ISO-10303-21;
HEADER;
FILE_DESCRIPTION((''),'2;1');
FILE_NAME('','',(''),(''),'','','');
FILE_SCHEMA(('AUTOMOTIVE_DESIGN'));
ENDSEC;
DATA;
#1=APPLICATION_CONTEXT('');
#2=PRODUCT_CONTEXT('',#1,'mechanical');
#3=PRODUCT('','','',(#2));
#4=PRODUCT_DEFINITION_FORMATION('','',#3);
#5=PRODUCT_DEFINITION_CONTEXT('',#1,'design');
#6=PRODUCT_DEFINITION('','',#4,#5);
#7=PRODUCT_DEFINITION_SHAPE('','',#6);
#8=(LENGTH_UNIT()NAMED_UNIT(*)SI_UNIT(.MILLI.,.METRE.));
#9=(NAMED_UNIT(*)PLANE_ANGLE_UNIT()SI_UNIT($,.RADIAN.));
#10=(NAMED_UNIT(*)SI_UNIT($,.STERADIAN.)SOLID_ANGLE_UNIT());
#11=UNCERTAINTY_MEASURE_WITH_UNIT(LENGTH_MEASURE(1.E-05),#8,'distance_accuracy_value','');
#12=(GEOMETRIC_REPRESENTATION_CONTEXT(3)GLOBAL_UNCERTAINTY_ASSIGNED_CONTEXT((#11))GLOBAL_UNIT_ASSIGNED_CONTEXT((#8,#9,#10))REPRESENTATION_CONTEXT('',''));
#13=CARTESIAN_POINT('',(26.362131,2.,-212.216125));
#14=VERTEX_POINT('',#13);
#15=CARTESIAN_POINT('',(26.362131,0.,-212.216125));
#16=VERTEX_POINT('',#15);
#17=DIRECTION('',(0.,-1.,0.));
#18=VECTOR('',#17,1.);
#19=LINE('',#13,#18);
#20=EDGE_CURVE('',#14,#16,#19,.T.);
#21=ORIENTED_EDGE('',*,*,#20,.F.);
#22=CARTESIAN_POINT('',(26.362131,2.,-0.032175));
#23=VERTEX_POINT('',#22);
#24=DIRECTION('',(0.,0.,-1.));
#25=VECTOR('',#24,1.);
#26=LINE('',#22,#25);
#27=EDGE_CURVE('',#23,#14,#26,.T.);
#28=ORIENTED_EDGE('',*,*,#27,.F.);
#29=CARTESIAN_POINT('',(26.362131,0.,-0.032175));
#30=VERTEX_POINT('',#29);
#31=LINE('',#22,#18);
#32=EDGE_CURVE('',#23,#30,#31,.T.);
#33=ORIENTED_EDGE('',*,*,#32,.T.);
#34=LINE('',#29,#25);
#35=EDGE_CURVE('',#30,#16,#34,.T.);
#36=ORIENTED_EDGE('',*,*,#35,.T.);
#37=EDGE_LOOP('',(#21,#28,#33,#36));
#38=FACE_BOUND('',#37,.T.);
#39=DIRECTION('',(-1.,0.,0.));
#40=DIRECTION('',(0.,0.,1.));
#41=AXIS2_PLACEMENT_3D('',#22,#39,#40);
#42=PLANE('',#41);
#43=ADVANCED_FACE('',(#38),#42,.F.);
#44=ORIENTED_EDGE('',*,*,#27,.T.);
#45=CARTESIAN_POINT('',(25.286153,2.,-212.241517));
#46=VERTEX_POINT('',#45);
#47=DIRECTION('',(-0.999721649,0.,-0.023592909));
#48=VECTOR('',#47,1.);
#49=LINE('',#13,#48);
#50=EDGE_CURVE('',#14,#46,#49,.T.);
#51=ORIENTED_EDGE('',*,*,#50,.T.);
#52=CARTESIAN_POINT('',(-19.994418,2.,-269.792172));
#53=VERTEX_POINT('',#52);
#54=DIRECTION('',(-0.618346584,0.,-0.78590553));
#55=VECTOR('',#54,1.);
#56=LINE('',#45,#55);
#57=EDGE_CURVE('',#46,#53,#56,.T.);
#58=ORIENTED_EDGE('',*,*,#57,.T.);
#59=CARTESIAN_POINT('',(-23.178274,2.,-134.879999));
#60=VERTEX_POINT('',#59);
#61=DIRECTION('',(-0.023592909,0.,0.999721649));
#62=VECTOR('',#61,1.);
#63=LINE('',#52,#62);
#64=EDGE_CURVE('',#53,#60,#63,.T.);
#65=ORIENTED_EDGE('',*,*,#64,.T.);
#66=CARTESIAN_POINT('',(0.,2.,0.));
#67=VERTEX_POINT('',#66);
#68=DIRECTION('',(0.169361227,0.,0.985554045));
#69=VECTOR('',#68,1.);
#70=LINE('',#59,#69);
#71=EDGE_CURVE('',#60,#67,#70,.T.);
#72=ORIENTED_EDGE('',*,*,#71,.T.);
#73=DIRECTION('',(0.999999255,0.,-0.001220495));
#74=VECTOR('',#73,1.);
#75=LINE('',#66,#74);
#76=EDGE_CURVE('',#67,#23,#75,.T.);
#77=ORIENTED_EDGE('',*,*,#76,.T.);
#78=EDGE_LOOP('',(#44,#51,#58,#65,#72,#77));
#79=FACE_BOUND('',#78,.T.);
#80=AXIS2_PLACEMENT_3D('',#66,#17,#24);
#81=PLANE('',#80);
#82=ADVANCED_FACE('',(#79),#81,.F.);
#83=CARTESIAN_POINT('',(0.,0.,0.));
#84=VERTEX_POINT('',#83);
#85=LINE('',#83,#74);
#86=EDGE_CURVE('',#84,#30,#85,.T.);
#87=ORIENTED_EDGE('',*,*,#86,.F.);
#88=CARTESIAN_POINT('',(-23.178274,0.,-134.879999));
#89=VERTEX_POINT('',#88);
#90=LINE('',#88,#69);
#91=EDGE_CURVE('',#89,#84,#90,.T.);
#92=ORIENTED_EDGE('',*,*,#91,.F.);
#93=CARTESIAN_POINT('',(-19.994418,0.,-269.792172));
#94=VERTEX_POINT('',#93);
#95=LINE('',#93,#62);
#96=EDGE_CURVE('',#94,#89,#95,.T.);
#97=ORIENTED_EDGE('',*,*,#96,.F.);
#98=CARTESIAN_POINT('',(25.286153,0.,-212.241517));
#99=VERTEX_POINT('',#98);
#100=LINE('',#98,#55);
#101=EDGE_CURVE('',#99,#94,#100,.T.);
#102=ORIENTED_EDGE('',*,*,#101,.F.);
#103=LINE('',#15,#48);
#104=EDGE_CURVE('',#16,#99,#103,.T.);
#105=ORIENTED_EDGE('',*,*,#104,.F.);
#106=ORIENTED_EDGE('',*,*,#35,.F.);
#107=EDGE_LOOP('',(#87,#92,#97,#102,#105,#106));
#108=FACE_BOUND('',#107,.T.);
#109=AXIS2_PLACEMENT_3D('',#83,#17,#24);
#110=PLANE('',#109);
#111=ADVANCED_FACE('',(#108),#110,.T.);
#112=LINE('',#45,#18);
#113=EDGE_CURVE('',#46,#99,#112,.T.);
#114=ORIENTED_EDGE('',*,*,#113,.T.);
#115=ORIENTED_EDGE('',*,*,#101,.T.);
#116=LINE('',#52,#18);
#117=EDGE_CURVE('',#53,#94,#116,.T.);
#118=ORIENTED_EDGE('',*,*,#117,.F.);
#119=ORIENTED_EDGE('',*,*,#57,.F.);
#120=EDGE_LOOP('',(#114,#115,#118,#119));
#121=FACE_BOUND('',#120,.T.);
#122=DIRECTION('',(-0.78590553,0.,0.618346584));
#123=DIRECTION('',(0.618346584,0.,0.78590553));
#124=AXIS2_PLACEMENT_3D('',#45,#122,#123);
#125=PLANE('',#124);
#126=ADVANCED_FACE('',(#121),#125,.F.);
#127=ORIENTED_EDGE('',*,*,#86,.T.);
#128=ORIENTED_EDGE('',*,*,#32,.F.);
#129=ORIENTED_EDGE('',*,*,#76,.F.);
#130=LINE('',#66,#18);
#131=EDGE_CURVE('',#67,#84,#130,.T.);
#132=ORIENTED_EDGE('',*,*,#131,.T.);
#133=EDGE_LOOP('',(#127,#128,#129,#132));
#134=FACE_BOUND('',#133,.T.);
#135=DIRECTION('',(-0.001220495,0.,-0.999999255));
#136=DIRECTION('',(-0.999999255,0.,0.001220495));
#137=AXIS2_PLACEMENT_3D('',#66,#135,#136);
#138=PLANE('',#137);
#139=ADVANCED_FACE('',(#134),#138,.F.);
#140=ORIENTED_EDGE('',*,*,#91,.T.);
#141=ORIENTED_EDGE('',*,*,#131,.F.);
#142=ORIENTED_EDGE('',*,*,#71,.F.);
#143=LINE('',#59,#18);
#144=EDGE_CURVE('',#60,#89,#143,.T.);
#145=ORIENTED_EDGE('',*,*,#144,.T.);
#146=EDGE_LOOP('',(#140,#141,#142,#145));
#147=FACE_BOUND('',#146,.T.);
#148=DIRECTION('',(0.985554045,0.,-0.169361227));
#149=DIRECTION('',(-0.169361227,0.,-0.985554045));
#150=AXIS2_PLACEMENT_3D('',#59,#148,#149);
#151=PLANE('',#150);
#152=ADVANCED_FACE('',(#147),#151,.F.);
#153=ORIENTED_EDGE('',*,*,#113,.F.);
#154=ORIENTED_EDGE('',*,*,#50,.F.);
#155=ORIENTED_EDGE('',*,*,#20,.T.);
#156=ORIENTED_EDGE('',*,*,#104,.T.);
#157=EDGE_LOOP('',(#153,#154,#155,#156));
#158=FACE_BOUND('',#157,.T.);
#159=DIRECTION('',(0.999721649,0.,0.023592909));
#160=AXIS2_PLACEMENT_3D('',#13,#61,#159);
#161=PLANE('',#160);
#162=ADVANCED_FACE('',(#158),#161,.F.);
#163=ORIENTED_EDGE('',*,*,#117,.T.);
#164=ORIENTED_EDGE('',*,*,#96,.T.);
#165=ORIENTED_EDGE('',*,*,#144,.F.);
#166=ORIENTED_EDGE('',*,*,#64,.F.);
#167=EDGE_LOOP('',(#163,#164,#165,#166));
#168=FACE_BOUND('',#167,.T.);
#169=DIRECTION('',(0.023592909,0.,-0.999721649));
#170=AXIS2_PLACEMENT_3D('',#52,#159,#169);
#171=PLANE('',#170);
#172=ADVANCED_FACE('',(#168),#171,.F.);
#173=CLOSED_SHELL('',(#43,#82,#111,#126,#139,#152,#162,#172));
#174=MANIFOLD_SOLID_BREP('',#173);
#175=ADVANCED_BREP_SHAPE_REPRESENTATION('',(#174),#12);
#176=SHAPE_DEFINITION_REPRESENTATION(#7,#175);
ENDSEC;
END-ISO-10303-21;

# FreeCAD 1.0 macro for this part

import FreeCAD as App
import Part
import Sketcher

V = App.Vector

doc = App.newDocument("Part")
body = doc.addObject("PartDesign::Body", "Body")

sketch1 = body.newObject("Sketcher::SketchObject", "Sketch")
sketch1.AttachmentSupport = (doc.getObject("XZ_Plane"), [""])
sketch1.MapMode = "FlatFace"
sketch1.addGeometry([
    Part.LineSegment(V(-23.2, -134.9, 0), V(0, 0, 0)),
    Part.LineSegment(V(0, 0, 0), V(26.4, 0, 0)),
    Part.LineSegment(V(26.4, 0, 0), V(26.4, -212.2, 0)),
    Part.LineSegment(V(26.4, -212.2, 0), V(25.3, -212.2, 0)),
    Part.LineSegment(V(25.3, -212.2, 0), V(-20, -269.8, 0)),
    Part.LineSegment(V(-20, -269.8, 0), V(-23.2, -134.9, 0)),
], False)
sketch1.addConstraint([
    Sketcher.Constraint("Coincident", 0, 2, 1, 1),
    Sketcher.Constraint("Coincident", 1, 2, 2, 1),
    Sketcher.Constraint("Coincident", 2, 2, 3, 1),
    Sketcher.Constraint("Coincident", 3, 2, 4, 1),
    Sketcher.Constraint("Coincident", 4, 2, 5, 1),
    Sketcher.Constraint("Coincident", 5, 2, 0, 1),
    Sketcher.Constraint("Vertical", 2),
    Sketcher.Constraint("Coincident", 0, 2, -1, 1),
    Sketcher.Constraint("Perpendicular", 3, 5),
    Sketcher.Constraint("DistanceY", 5, 2, -1, 1, 134.879999),
    Sketcher.Constraint("DistanceY", 2, 2, 2, 1, 212.18395),
    Sketcher.Constraint("Distance", 0, 136.857029),
    Sketcher.Constraint("Distance", 1, 26.362151),
    Sketcher.Constraint("DistanceX", 4, 2, 3, 2, 45.280571),
    Sketcher.Constraint("DistanceX", 4, 2, 2, 2, 46.356549),
    Sketcher.Constraint("DistanceY", 3, 2, 5, 2, 77.361518),
    Sketcher.Constraint("Distance", 4, 73.228465),
])
pad1 = body.newObject("PartDesign::Pad", "Pad")
pad1.Profile = sketch1
pad1.Length = 2
pad1.Reversed = True

doc.recompute()
